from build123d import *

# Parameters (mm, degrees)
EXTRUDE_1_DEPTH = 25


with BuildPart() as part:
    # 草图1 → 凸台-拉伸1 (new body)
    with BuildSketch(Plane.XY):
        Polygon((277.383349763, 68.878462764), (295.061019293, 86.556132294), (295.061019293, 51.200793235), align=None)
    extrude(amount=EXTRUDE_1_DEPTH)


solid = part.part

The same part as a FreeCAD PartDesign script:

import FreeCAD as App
import Part
import Sketcher

V = App.Vector
Q = App.Units.Quantity

doc = App.newDocument("Part")
params = doc.addObject("Spreadsheet::Sheet", "Params")
for row, (alias, value) in enumerate([
    ("sketch1_length", "25 mm"),
    ("pad1_length", "25 mm"),
], start=1):
    params.set(f"A{row}", alias)
    params.set(f"B{row}", "=" + value)
    params.setAlias(f"B{row}", alias)

body = doc.addObject("PartDesign::Body", "Body")

# Sketch on XY plane
sketch1 = doc.addObject("Sketcher::SketchObject", "Sketch")
body.addObject(sketch1)
sketch1.AttachmentSupport = (doc.XY_Plane, [""])
sketch1.MapMode = "FlatFace"
sketch1.addGeometry([
    Part.LineSegment(V(295, 87, 0), V(277, 69, 0)),
    Part.LineSegment(V(277, 69, 0), V(295, 51, 0)),
    Part.LineSegment(V(295, 51, 0), V(295, 87, 0)),
], False)
sketch1.addConstraint([
    Sketcher.Constraint("Coincident", 0, 2, 1, 1),
    Sketcher.Constraint("Coincident", 1, 2, 2, 1),
    Sketcher.Constraint("Coincident", 2, 2, 0, 1),
    Sketcher.Constraint("Vertical", 2),
    Sketcher.Constraint("Perpendicular", 0, 1),
    Sketcher.Constraint("Equal", 0, 1),
    Sketcher.Constraint("Distance", 0, Q("25 mm")),
    Sketcher.Constraint("DistanceX", -1, 1, 0, 2, Q("277.38335 mm")),
    Sketcher.Constraint("DistanceY", -1, 1, 0, 2, Q("68.878463 mm")),
])
sketch1.setExpression("Constraints[6]", "Params.sketch1_length")
pad1 = doc.addObject("PartDesign::Pad", "Pad")
body.addObject(pad1)
pad1.Profile = sketch1
pad1.setExpression("Length", "Params.pad1_length")

doc.recompute()
